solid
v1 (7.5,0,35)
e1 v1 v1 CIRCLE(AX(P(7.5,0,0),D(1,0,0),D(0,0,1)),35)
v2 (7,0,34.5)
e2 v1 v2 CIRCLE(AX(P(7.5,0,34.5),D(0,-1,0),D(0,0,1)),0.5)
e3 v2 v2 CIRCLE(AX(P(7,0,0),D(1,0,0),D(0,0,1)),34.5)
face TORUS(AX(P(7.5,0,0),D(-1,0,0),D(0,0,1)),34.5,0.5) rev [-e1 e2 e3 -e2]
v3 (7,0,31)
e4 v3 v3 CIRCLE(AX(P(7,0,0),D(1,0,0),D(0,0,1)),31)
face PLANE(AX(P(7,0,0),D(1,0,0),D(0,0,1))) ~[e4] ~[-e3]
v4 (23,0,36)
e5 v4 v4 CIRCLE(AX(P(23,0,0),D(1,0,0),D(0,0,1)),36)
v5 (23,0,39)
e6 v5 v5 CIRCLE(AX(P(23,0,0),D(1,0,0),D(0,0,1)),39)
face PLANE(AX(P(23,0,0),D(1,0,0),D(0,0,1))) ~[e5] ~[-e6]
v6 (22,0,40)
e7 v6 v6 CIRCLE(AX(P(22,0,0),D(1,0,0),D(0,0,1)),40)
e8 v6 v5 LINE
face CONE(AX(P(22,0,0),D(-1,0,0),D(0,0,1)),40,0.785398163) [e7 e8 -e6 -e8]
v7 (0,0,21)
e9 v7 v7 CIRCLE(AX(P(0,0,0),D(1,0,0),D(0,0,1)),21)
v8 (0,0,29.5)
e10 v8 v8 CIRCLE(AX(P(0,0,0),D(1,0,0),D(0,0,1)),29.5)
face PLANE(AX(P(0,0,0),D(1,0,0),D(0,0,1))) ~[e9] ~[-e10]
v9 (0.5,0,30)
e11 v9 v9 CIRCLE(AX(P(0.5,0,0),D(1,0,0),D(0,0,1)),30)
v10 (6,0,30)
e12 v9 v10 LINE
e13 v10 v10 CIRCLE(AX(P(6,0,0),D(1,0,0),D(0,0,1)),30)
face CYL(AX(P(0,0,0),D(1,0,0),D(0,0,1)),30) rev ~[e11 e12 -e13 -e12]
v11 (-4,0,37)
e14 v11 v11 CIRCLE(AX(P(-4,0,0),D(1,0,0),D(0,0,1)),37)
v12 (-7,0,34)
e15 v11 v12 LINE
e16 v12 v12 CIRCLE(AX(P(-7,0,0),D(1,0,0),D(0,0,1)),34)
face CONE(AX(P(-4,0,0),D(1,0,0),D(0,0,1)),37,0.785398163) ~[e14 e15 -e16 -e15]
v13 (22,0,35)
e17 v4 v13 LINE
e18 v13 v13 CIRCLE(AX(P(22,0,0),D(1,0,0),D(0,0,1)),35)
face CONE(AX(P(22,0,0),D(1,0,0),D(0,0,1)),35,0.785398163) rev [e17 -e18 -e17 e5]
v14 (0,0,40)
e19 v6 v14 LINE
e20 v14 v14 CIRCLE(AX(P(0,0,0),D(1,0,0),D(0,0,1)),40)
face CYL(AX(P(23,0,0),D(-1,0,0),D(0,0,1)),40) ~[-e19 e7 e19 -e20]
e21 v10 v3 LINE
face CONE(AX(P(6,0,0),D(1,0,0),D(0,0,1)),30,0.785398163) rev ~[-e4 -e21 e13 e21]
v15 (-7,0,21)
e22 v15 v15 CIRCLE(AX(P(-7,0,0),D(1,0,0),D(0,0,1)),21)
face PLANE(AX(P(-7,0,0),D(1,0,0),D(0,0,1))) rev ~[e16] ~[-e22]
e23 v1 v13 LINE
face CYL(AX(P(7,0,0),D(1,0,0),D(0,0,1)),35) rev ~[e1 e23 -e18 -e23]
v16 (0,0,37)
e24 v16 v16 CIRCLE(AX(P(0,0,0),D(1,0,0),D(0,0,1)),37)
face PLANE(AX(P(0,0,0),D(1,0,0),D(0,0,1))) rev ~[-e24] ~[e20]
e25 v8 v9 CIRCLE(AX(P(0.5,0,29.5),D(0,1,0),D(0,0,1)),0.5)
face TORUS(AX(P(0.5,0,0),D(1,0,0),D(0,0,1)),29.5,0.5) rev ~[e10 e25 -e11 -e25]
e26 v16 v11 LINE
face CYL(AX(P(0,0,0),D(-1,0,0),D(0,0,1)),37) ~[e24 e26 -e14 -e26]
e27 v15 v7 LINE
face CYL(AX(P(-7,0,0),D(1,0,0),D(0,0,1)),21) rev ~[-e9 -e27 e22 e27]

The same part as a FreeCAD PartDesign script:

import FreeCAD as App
import Part
import Sketcher
Q = App.Units.Quantity


def edges_at(feature, points):
    """Names of the edges that pass closest to the given points."""
    edges = feature.Shape.Edges
    near = lambda p: min(range(len(edges)), key=lambda i: edges[i].distToShape(Part.Vertex(*p))[0])
    return sorted({f"Edge{near(p) + 1}" for p in points})

doc = App.newDocument("Part")
body = doc.addObject("PartDesign::Body", "Body")

sketch1 = body.newObject("Sketcher::SketchObject", "Sketch")
sketch1.AttachmentSupport = (doc.getObject("XZ_Plane"), [""])
sketch1.MapMode = "FlatFace"
sketch1.addGeometry([
    Part.LineSegment(App.Vector(-7, 21, 0), App.Vector(0, 21, 0)),
    Part.LineSegment(App.Vector(0, 21, 0), App.Vector(0, 30, 0)),
    Part.LineSegment(App.Vector(0, 30, 0), App.Vector(7, 30, 0)),
    Part.LineSegment(App.Vector(7, 30, 0), App.Vector(7, 35, 0)),
    Part.LineSegment(App.Vector(7, 35, 0), App.Vector(23, 35, 0)),
    Part.LineSegment(App.Vector(23, 35, 0), App.Vector(23, 40, 0)),
    Part.LineSegment(App.Vector(23, 40, 0), App.Vector(0, 40, 0)),
    Part.LineSegment(App.Vector(0, 40, 0), App.Vector(0, 37, 0)),
    Part.LineSegment(App.Vector(0, 37, 0), App.Vector(-7, 37, 0)),
    Part.LineSegment(App.Vector(-7, 37, 0), App.Vector(-7, 21, 0)),
], False)
sketch1.addConstraint([
    Sketcher.Constraint("Coincident", 0, 2, 1, 1),
    Sketcher.Constraint("Coincident", 1, 2, 2, 1),
    Sketcher.Constraint("Coincident", 2, 2, 3, 1),
    Sketcher.Constraint("Coincident", 3, 2, 4, 1),
    Sketcher.Constraint("Coincident", 4, 2, 5, 1),
    Sketcher.Constraint("Coincident", 5, 2, 6, 1),
    Sketcher.Constraint("Coincident", 6, 2, 7, 1),
    Sketcher.Constraint("Coincident", 7, 2, 8, 1),
    Sketcher.Constraint("Coincident", 8, 2, 9, 1),
    Sketcher.Constraint("Coincident", 9, 2, 0, 1),
    Sketcher.Constraint("Horizontal", 0),
    Sketcher.Constraint("Vertical", 1),
    Sketcher.Constraint("Horizontal", 2),
    Sketcher.Constraint("Vertical", 3),
    Sketcher.Constraint("Horizontal", 4),
    Sketcher.Constraint("Vertical", 5),
    Sketcher.Constraint("Horizontal", 6),
    Sketcher.Constraint("Vertical", 7),
    Sketcher.Constraint("Horizontal", 8),
    Sketcher.Constraint("Vertical", 9),
    Sketcher.Constraint("PointOnObject", 0, 2, -2),
    Sketcher.Constraint("PointOnObject", 6, 2, -2),
    Sketcher.Constraint("Equal", 0, 2),
    Sketcher.Constraint("Equal", 3, 5),
    Sketcher.Constraint("Equal", 4, 9),
    Sketcher.Constraint("DistanceX", 0, 1, 0, 2, Q("7 mm")),
    Sketcher.Constraint("DistanceX", 4, 1, 4, 2, Q("16 mm")),
    Sketcher.Constraint("DistanceY", 1, 1, 1, 2, Q("9 mm")),
    Sketcher.Constraint("DistanceY", 3, 1, 3, 2, Q("5 mm")),
    Sketcher.Constraint("DistanceY", -1, 1, 0, 2, Q("21 mm")),
])
revolution = body.newObject("PartDesign::Revolution", "Revolution")
revolution.Profile = sketch1
revolution.ReferenceAxis = (sketch1, ["H_Axis"])
revolution.Angle = 360
doc.recompute()

chamfer = body.newObject("PartDesign::Chamfer", "Chamfer")
chamfer.Base = (revolution, edges_at(revolution, [(-7, 0, -37)]))
chamfer.Size = 3
doc.recompute()

chamfer2 = body.newObject("PartDesign::Chamfer", "Chamfer001")
chamfer2.Base = (chamfer, edges_at(chamfer, [(23, 0, -40), (23, 0, -35), (7, 0, -30)]))
chamfer2.Size = 1
doc.recompute()

fillet = body.newObject("PartDesign::Fillet", "Fillet")
fillet.Base = (chamfer2, edges_at(chamfer2, [(0, 0, -30), (7, 0, -35)]))
fillet.Radius = 0.5

doc.recompute()
